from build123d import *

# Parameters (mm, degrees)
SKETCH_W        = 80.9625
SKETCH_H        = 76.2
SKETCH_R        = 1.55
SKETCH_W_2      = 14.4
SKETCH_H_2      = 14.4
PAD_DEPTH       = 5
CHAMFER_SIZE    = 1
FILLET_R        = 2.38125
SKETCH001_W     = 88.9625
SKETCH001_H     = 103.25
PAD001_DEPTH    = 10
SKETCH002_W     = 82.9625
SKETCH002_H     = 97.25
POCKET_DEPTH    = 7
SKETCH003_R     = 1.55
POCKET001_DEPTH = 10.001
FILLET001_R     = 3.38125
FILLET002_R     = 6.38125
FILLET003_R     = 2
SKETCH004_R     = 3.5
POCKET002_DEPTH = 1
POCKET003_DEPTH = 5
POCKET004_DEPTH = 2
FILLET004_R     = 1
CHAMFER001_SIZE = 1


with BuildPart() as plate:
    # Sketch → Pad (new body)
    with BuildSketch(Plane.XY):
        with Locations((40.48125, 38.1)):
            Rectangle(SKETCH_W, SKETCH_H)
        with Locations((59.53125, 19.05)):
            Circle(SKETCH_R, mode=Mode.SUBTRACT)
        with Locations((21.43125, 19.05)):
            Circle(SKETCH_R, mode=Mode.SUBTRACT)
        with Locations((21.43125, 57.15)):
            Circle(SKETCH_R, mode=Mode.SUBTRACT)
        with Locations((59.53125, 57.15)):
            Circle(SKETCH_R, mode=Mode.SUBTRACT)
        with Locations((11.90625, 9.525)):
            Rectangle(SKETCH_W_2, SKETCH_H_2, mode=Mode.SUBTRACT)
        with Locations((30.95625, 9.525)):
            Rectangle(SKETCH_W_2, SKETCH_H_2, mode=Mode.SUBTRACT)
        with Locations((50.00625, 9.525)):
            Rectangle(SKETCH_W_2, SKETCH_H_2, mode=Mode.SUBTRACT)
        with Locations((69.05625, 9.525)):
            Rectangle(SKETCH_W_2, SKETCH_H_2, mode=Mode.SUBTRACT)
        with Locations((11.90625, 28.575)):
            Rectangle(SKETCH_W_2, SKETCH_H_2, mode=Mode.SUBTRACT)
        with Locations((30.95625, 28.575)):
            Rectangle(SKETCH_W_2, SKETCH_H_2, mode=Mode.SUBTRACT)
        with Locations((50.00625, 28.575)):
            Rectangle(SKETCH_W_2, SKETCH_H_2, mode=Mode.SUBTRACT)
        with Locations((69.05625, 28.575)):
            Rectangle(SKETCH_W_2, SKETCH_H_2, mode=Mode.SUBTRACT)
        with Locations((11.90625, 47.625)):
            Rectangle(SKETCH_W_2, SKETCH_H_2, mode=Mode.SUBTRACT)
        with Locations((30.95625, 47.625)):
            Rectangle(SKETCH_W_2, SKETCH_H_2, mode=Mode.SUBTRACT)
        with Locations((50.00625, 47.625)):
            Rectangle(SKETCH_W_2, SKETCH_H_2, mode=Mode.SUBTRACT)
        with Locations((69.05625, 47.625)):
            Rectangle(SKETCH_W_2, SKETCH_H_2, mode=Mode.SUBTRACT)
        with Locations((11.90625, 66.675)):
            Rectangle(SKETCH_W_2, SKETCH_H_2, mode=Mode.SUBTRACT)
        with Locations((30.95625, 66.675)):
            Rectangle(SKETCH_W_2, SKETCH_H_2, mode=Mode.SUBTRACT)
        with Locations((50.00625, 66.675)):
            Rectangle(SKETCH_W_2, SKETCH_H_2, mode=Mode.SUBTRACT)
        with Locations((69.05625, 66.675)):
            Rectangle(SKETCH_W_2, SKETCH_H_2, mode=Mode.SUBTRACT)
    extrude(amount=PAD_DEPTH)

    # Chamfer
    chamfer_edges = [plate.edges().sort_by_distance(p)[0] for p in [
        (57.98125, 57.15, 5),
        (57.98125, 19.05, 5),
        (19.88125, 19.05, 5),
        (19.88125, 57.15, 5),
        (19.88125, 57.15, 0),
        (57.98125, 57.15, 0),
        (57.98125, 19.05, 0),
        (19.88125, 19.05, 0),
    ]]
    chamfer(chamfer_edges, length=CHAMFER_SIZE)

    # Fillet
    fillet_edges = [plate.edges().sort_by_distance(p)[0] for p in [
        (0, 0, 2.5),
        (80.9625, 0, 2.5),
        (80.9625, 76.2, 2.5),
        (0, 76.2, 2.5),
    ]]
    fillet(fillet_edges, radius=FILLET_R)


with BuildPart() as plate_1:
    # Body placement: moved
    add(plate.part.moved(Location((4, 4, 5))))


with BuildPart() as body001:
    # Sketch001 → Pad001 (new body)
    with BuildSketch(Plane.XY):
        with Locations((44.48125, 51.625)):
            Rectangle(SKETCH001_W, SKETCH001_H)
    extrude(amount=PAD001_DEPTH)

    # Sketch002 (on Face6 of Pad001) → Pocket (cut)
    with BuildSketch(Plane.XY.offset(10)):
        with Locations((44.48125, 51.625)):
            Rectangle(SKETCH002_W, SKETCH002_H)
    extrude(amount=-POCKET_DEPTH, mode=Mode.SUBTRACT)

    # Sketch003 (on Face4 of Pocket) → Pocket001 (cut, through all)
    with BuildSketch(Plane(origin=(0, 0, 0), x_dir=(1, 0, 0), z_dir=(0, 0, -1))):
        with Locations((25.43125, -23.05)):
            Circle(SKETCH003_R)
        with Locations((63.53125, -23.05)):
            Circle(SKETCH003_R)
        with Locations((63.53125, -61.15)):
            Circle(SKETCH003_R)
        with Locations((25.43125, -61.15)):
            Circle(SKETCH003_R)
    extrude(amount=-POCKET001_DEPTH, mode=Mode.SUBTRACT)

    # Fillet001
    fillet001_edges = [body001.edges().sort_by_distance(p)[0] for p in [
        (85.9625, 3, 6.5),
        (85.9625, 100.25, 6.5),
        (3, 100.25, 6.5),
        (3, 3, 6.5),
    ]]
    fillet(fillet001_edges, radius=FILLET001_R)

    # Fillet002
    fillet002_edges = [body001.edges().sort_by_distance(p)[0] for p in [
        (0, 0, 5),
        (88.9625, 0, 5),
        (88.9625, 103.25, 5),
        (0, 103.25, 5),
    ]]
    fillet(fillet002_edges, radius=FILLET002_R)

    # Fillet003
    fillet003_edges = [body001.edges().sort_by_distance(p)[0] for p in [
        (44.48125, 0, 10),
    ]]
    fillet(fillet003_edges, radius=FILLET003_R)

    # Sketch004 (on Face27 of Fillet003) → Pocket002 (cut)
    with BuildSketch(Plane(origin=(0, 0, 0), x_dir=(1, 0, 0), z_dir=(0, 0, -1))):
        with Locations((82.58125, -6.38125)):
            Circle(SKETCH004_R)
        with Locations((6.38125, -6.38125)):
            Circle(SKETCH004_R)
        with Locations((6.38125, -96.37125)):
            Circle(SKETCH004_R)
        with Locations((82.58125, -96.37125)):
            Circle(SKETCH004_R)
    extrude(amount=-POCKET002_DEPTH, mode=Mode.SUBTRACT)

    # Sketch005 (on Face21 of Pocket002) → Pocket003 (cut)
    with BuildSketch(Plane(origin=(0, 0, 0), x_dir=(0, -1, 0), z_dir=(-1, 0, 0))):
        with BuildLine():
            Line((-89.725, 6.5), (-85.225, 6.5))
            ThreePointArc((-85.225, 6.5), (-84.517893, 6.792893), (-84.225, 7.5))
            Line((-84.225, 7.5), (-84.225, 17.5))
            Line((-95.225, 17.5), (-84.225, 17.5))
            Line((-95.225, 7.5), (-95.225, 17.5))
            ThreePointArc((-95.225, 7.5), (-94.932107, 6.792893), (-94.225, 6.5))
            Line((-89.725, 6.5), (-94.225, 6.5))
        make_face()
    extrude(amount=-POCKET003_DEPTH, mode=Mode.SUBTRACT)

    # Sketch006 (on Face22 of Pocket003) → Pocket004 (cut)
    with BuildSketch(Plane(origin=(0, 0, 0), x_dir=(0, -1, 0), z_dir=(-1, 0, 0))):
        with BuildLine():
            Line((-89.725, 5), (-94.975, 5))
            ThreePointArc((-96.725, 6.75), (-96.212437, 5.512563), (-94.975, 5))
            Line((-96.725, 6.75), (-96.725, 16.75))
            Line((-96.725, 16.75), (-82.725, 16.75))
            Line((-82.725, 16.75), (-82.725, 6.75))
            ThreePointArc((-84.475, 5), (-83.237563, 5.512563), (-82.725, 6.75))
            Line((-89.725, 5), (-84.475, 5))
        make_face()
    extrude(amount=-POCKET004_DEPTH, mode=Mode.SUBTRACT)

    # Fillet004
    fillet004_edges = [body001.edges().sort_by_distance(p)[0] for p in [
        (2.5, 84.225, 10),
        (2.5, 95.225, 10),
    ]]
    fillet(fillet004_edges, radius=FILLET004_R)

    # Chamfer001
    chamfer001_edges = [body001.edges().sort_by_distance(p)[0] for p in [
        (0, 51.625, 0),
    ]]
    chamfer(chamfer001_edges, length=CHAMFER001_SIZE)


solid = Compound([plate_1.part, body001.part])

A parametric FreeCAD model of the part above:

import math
import FreeCAD as App
import Part
import Sketcher

V = App.Vector


def edges_at(feature, points):
    """Names of the edges that pass closest to the given points."""
    edges = feature.Shape.Edges
    near = lambda p: min(range(len(edges)), key=lambda i: edges[i].distToShape(Part.Vertex(*p))[0])
    return sorted({f"Edge{near(p) + 1}" for p in points})


def add_polygon(sketch, points):
    """Adds a closed chain of lines whose ends are joined by coincident constraints."""
    first, n = sketch.GeometryCount, len(points)
    for a, b in zip(points, points[1:] + points[:1]):
        sketch.addGeometry(Part.LineSegment(App.Vector(*a, 0), App.Vector(*b, 0)), False)
    for i in range(n):
        sketch.addConstraint(Sketcher.Constraint("Coincident", first + i, 2, first + (i + 1) % n, 1))

doc = App.newDocument("Part")
body = doc.addObject("PartDesign::Body", "Body")

# Sketch on XY plane
sketch1 = body.newObject("Sketcher::SketchObject", "Sketch")
sketch1.AttachmentSupport = (doc.getObject("XY_Plane"), [""])
sketch1.MapMode = "FlatFace"
add_polygon(sketch1, [(0, 76.2), (0, 0), (81, 0), (81, 76.2)])  # lines 0-3
add_polygon(sketch1, [(19.1, 2.3), (4.7, 2.3), (4.7, 16.7), (19.1, 16.7)])  # lines 4-7
sketch1.addGeometry(Part.Circle(V(21.4, 19.1, 0), V(0, 0, 1), 1.6), False)  # 8
add_polygon(sketch1, [(38.2, 2.3), (23.8, 2.3), (23.8, 16.7), (38.2, 16.7)])  # lines 9-12
add_polygon(sketch1, [(19.1, 21.4), (4.7, 21.4), (4.7, 35.8), (19.1, 35.8)])  # lines 13-16
add_polygon(sketch1, [(38.2, 21.4), (23.8, 21.4), (23.8, 35.8), (38.2, 35.8)])  # lines 17-20
add_polygon(sketch1, [(57.2, 2.3), (42.8, 2.3), (42.8, 16.7), (57.2, 16.7)])  # lines 21-24
add_polygon(sketch1, [(76.3, 2.3), (61.9, 2.3), (61.9, 16.7), (76.3, 16.7)])  # lines 25-28
sketch1.addGeometry(Part.Circle(V(59.5, 19.1, 0), V(0, 0, 1), 1.6), False)  # 29
add_polygon(sketch1, [(57.2, 21.4), (42.8, 21.4), (42.8, 35.8), (57.2, 35.8)])  # lines 30-33
add_polygon(sketch1, [(76.3, 21.4), (61.9, 21.4), (61.9, 35.8), (76.3, 35.8)])  # lines 34-37
add_polygon(sketch1, [(19.1, 40.4), (4.7, 40.4), (4.7, 54.8), (19.1, 54.8)])  # lines 38-41
add_polygon(sketch1, [(38.2, 40.4), (23.8, 40.4), (23.8, 54.8), (38.2, 54.8)])  # lines 42-45
sketch1.addGeometry(Part.Circle(V(21.4, 57.1, 0), V(0, 0, 1), 1.6), False)  # 46
add_polygon(sketch1, [(19.1, 59.5), (4.7, 59.5), (4.7, 73.9), (19.1, 73.9)])  # lines 47-50
add_polygon(sketch1, [(38.2, 59.5), (23.8, 59.5), (23.8, 73.9), (38.2, 73.9)])  # lines 51-54
add_polygon(sketch1, [(57.2, 40.4), (42.8, 40.4), (42.8, 54.8), (57.2, 54.8)])  # lines 55-58
add_polygon(sketch1, [(76.3, 40.4), (61.9, 40.4), (61.9, 54.8), (76.3, 54.8)])  # lines 59-62
add_polygon(sketch1, [(57.2, 59.5), (42.8, 59.5), (42.8, 73.9), (57.2, 73.9)])  # lines 63-66
sketch1.addGeometry(Part.Circle(V(59.5, 57.1, 0), V(0, 0, 1), 1.6), False)  # 67
add_polygon(sketch1, [(76.3, 59.5), (61.9, 59.5), (61.9, 73.9), (76.3, 73.9)])  # lines 68-71
sketch1.addConstraint([
    Sketcher.Constraint("Vertical", 0),
    Sketcher.Constraint("Horizontal", 1),
    Sketcher.Constraint("Vertical", 2),
    Sketcher.Constraint("Horizontal", 3),
    Sketcher.Constraint("Horizontal", 4),
    Sketcher.Constraint("Vertical", 5),
    Sketcher.Constraint("Horizontal", 6),
    Sketcher.Constraint("Vertical", 7),
    Sketcher.Constraint("Horizontal", 9),
    Sketcher.Constraint("Vertical", 10),
    Sketcher.Constraint("Horizontal", 11),
    Sketcher.Constraint("Vertical", 12),
    Sketcher.Constraint("Horizontal", 13),
    Sketcher.Constraint("Vertical", 14),
    Sketcher.Constraint("Horizontal", 15),
    Sketcher.Constraint("Vertical", 16),
    Sketcher.Constraint("Horizontal", 17),
    Sketcher.Constraint("Vertical", 18),
    Sketcher.Constraint("Horizontal", 19),
    Sketcher.Constraint("Vertical", 20),
    Sketcher.Constraint("Horizontal", 21),
    Sketcher.Constraint("Vertical", 22),
    Sketcher.Constraint("Horizontal", 23),
    Sketcher.Constraint("Vertical", 24),
    Sketcher.Constraint("Horizontal", 25),
    Sketcher.Constraint("Vertical", 26),
    Sketcher.Constraint("Horizontal", 27),
    Sketcher.Constraint("Vertical", 28),
    Sketcher.Constraint("Horizontal", 30),
    Sketcher.Constraint("Vertical", 31),
    Sketcher.Constraint("Horizontal", 32),
    Sketcher.Constraint("Vertical", 33),
    Sketcher.Constraint("Horizontal", 34),
    Sketcher.Constraint("Vertical", 35),
    Sketcher.Constraint("Horizontal", 36),
    Sketcher.Constraint("Vertical", 37),
    Sketcher.Constraint("Horizontal", 38),
    Sketcher.Constraint("Vertical", 39),
    Sketcher.Constraint("Horizontal", 40),
    Sketcher.Constraint("Vertical", 41),
    Sketcher.Constraint("Horizontal", 42),
    Sketcher.Constraint("Vertical", 43),
    Sketcher.Constraint("Horizontal", 44),
    Sketcher.Constraint("Vertical", 45),
    Sketcher.Constraint("Horizontal", 47),
    Sketcher.Constraint("Vertical", 48),
    Sketcher.Constraint("Horizontal", 49),
    Sketcher.Constraint("Vertical", 50),
    Sketcher.Constraint("Horizontal", 51),
    Sketcher.Constraint("Vertical", 52),
    Sketcher.Constraint("Horizontal", 53),
    Sketcher.Constraint("Vertical", 54),
    Sketcher.Constraint("Horizontal", 55),
    Sketcher.Constraint("Vertical", 56),
    Sketcher.Constraint("Horizontal", 57),
    Sketcher.Constraint("Vertical", 58),
    Sketcher.Constraint("Horizontal", 59),
    Sketcher.Constraint("Vertical", 60),
    Sketcher.Constraint("Horizontal", 61),
    Sketcher.Constraint("Vertical", 62),
    Sketcher.Constraint("Horizontal", 63),
    Sketcher.Constraint("Vertical", 64),
    Sketcher.Constraint("Horizontal", 65),
    Sketcher.Constraint("Vertical", 66),
    Sketcher.Constraint("Horizontal", 68),
    Sketcher.Constraint("Vertical", 69),
    Sketcher.Constraint("Horizontal", 70),
    Sketcher.Constraint("Vertical", 71),
    Sketcher.Constraint("Coincident", 0, 2, -1, 1),
    Sketcher.Constraint("Equal", 8, 29),
    Sketcher.Constraint("Equal", 29, 46),
    Sketcher.Constraint("Equal", 46, 67),
    Sketcher.Constraint("Horizontal", 8, 3, 29, 3),
    Sketcher.Constraint("Horizontal", 46, 3, 67, 3),
    Sketcher.Constraint("Horizontal", 7, 2, 9, 2),
    Sketcher.Constraint("Horizontal", 6, 2, 10, 2),
    Sketcher.Constraint("Horizontal", 16, 2, 17, 2),
    Sketcher.Constraint("Horizontal", 15, 2, 18, 2),
    Sketcher.Constraint("Horizontal", 12, 2, 21, 2),
    Sketcher.Constraint("Horizontal", 11, 2, 22, 2),
    Sketcher.Constraint("Horizontal", 24, 2, 25, 2),
    Sketcher.Constraint("Horizontal", 23, 2, 26, 2),
    Sketcher.Constraint("Horizontal", 20, 2, 30, 2),
    Sketcher.Constraint("Horizontal", 19, 2, 31, 2),
    Sketcher.Constraint("Horizontal", 33, 2, 34, 2),
    Sketcher.Constraint("Horizontal", 32, 2, 35, 2),
    Sketcher.Constraint("Horizontal", 41, 2, 42, 2),
    Sketcher.Constraint("Horizontal", 40, 2, 43, 2),
    Sketcher.Constraint("Horizontal", 50, 2, 51, 2),
    Sketcher.Constraint("Horizontal", 49, 2, 52, 2),
    Sketcher.Constraint("Horizontal", 45, 2, 55, 2),
    Sketcher.Constraint("Horizontal", 44, 2, 56, 2),
    Sketcher.Constraint("Horizontal", 58, 2, 59, 2),
    Sketcher.Constraint("Horizontal", 57, 2, 60, 2),
    Sketcher.Constraint("Horizontal", 54, 2, 63, 2),
    Sketcher.Constraint("Horizontal", 53, 2, 64, 2),
    Sketcher.Constraint("Horizontal", 66, 2, 68, 2),
    Sketcher.Constraint("Horizontal", 65, 2, 69, 2),
    Sketcher.Constraint("Vertical", 8, 3, 46, 3),
    Sketcher.Constraint("Vertical", 29, 3, 67, 3),
    Sketcher.Constraint("Vertical", 5, 2, 13, 2),
    Sketcher.Constraint("Vertical", 7, 2, 15, 2),
    Sketcher.Constraint("Vertical", 10, 2, 17, 2),
    Sketcher.Constraint("Vertical", 12, 2, 19, 2),
    Sketcher.Constraint("Vertical", 22, 2, 30, 2),
    Sketcher.Constraint("Vertical", 24, 2, 32, 2),
    Sketcher.Constraint("Vertical", 26, 2, 34, 2),
    Sketcher.Constraint("Vertical", 28, 2, 36, 2),
    Sketcher.Constraint("Vertical", 14, 2, 38, 2),
    Sketcher.Constraint("Vertical", 16, 2, 40, 2),
    Sketcher.Constraint("Vertical", 18, 2, 42, 2),
    Sketcher.Constraint("Vertical", 20, 2, 44, 2),
    Sketcher.Constraint("Vertical", 39, 2, 47, 2),
    Sketcher.Constraint("Vertical", 41, 2, 49, 2),
    Sketcher.Constraint("Vertical", 43, 2, 51, 2),
    Sketcher.Constraint("Vertical", 45, 2, 53, 2),
    Sketcher.Constraint("Vertical", 31, 2, 55, 2),
    Sketcher.Constraint("Vertical", 33, 2, 57, 2),
    Sketcher.Constraint("Vertical", 35, 2, 59, 2),
    Sketcher.Constraint("Vertical", 37, 2, 61, 2),
    Sketcher.Constraint("Vertical", 56, 2, 63, 2),
    Sketcher.Constraint("Vertical", 58, 2, 65, 2),
    Sketcher.Constraint("Vertical", 60, 2, 68, 2),
    Sketcher.Constraint("Vertical", 62, 2, 70, 2),
    Sketcher.Constraint("Equal", 6, 9),
    Sketcher.Constraint("Equal", 19, 21),
    Sketcher.Constraint("Equal", 23, 25),
    Sketcher.Constraint("Equal", 70, 5),
    Sketcher.Constraint("Equal", 12, 14),
    Sketcher.Constraint("Equal", 37, 39),
    Sketcher.Constraint("Equal", 45, 48),
    Sketcher.Constraint("Diameter", 8, 3.1),
    Sketcher.Constraint("DistanceX", 4, 2, 4, 1, 14.4),
    Sketcher.Constraint("DistanceY", 0, 2, 0, 1, 76.2),
    Sketcher.Constraint("DistanceY", -1, 1, 8, 3, 19.05),
    Sketcher.Constraint("DistanceY", -1, 1, 46, 3, 57.15),
    Sketcher.Constraint("DistanceX", 1, 1, 1, 2, 80.9625),
    Sketcher.Constraint("DistanceY", -1, 1, 4, 2, 2.325),
    Sketcher.Constraint("DistanceY", -1, 1, 13, 2, 21.375),
    Sketcher.Constraint("DistanceY", -1, 1, 38, 2, 40.425),
    Sketcher.Constraint("DistanceY", -1, 1, 47, 2, 59.475),
    Sketcher.Constraint("DistanceX", -1, 1, 8, 3, 21.43125),
    Sketcher.Constraint("DistanceX", -1, 1, 29, 3, 59.53125),
    Sketcher.Constraint("DistanceX", -1, 1, 4, 2, 4.70625),
    Sketcher.Constraint("DistanceX", -1, 1, 9, 2, 23.75625),
    Sketcher.Constraint("DistanceX", -1, 1, 21, 2, 42.80625),
    Sketcher.Constraint("DistanceX", -1, 1, 25, 2, 61.85625),
])
pad1 = body.newObject("PartDesign::Pad", "Pad")
pad1.Profile = sketch1
pad1.Length = 5
doc.recompute()

chamfer = body.newObject("PartDesign::Chamfer", "Chamfer")
chamfer.Base = (pad1, edges_at(pad1, [
    (57.981, 57.15, 5),
    (57.981, 19.05, 5),
    (19.881, 19.05, 5),
    (19.881, 57.15, 5),
    (19.881, 57.15, 0),
    (57.981, 57.15, 0),
    (57.981, 19.05, 0),
    (19.881, 19.05, 0),
]))
chamfer.Size = 1
doc.recompute()

fillet = body.newObject("PartDesign::Fillet", "Fillet")
fillet.Base = (chamfer, edges_at(chamfer, [
    (0, 0, 2.5),
    (80.963, 0, 2.5),
    (80.963, 76.2, 2.5),
    (0, 76.2, 2.5),
]))
fillet.Radius = 2.38125
body2 = doc.addObject("PartDesign::Body", "Body001")
doc.recompute()

body.Placement = App.Placement(V(4, 4, 5), App.Rotation(V(0, 0, 1), 0))
boolean = body2.newObject("PartDesign::Boolean", "Boolean")
boolean.Type = "Fuse"
boolean.addObjects([body])
body3 = doc.addObject("PartDesign::Body", "Body002")

# Sketch on XY plane
sketch2 = body3.newObject("Sketcher::SketchObject", "Sketch001")
sketch2.AttachmentSupport = (doc.getObject("XY_Plane002"), [""])
sketch2.MapMode = "FlatFace"
add_polygon(sketch2, [(0, 103), (0, 0), (89, 0), (89, 103)])  # lines 0-3
sketch2.addConstraint([
    Sketcher.Constraint("Vertical", 0),
    Sketcher.Constraint("Horizontal", 1),
    Sketcher.Constraint("Vertical", 2),
    Sketcher.Constraint("Horizontal", 3),
    Sketcher.Constraint("Coincident", 0, 2, -1, 1),
    Sketcher.Constraint("DistanceY", 0, 2, 0, 1, 103.25),
    Sketcher.Constraint("DistanceX", 1, 1, 1, 2, 88.9625),
])
pad2 = body3.newObject("PartDesign::Pad", "Pad001")
pad2.Profile = sketch2
pad2.Length = 10

# Sketch on XY plane
sketch3 = body3.newObject("Sketcher::SketchObject", "Sketch002")
sketch3.AttachmentSupport = (doc.getObject("XY_Plane002"), [""])
sketch3.MapMode = "FlatFace"
sketch3.AttachmentOffset = App.Placement(V(0, 0, 10), App.Rotation())
add_polygon(sketch3, [(3, 100), (3, 3), (86, 3), (86, 100)])  # lines 0-3
sketch3.addConstraint([
    Sketcher.Constraint("Vertical", 0),
    Sketcher.Constraint("Horizontal", 1),
    Sketcher.Constraint("Vertical", 2),
    Sketcher.Constraint("Horizontal", 3),
    Sketcher.Constraint("DistanceX", -1, 1, 0, 2, 3.0),
    Sketcher.Constraint("DistanceY", -1, 1, 0, 2, 3.0),
    Sketcher.Constraint("DistanceY", 0, 2, 0, 1, 97.25),
    Sketcher.Constraint("DistanceX", 1, 1, 1, 2, 82.9625),
])
pocket1 = body3.newObject("PartDesign::Pocket", "Pocket")
pocket1.Profile = sketch3
pocket1.Length = 7

# Sketch on XY plane
sketch4 = body3.newObject("Sketcher::SketchObject", "Sketch003")
sketch4.AttachmentSupport = (doc.getObject("XY_Plane002"), [""])
sketch4.MapMode = "FlatFace"
sketch4.addGeometry([
    Part.Circle(V(25.4, 23.1, 0), V(0, 0, 1), 1.6),
    Part.Circle(V(63.5, 23.1, 0), V(0, 0, 1), 1.6),
    Part.Circle(V(63.5, 61.1, 0), V(0, 0, 1), 1.6),
    Part.Circle(V(25.4, 61.1, 0), V(0, 0, 1), 1.6),
], False)
sketch4.addConstraint([
    Sketcher.Constraint("Equal", 0, 1),
    Sketcher.Constraint("Equal", 1, 2),
    Sketcher.Constraint("Equal", 2, 3),
    Sketcher.Constraint("Horizontal", 0, 3, 1, 3),
    Sketcher.Constraint("Horizontal", 2, 3, 3, 3),
    Sketcher.Constraint("Vertical", 1, 3, 2, 3),
    Sketcher.Constraint("Vertical", 0, 3, 3, 3),
    Sketcher.Constraint("Diameter", 0, 3.1),
    Sketcher.Constraint("DistanceX", 0, 3, 1, 3, 38.1),
    Sketcher.Constraint("DistanceY", 1, 3, 2, 3, 38.1),
    Sketcher.Constraint("DistanceY", -1, 1, 0, 3, 23.05),
    Sketcher.Constraint("DistanceX", -1, 1, 0, 3, 25.43125),
])
pocket2 = body3.newObject("PartDesign::Pocket", "Pocket001")
pocket2.Profile = sketch4
pocket2.Type = "ThroughAll"
pocket2.Reversed = True
doc.recompute()

fillet2 = body3.newObject("PartDesign::Fillet", "Fillet001")
fillet2.Base = (pocket2, edges_at(pocket2, [
    (85.963, 3, 6.5),
    (85.963, 100.25, 6.5),
    (3, 100.25, 6.5),
    (3, 3, 6.5),
]))
fillet2.Radius = 3.38125
doc.recompute()

fillet3 = body3.newObject("PartDesign::Fillet", "Fillet002")
fillet3.Base = (fillet2, edges_at(fillet2, [
    (0, 0, 5),
    (88.963, 0, 5),
    (88.963, 103.25, 5),
    (0, 103.25, 5),
]))
fillet3.Radius = 6.38125
doc.recompute()

fillet4 = body3.newObject("PartDesign::Fillet", "Fillet003")
fillet4.Base = (fillet3, edges_at(fillet3, [(44.481, 0, 10)]))
fillet4.Radius = 2

# Sketch on XY plane
sketch5 = body3.newObject("Sketcher::SketchObject", "Sketch004")
sketch5.AttachmentSupport = (doc.getObject("XY_Plane002"), [""])
sketch5.MapMode = "FlatFace"
sketch5.addGeometry([
    Part.Circle(V(82.6, 6.4, 0), V(0, 0, 1), 3.5),
    Part.Circle(V(6.4, 6.4, 0), V(0, 0, 1), 3.5),
    Part.Circle(V(6.4, 96.4, 0), V(0, 0, 1), 3.5),
    Part.Circle(V(82.6, 96.4, 0), V(0, 0, 1), 3.5),
], False)
sketch5.addConstraint([
    Sketcher.Constraint("Equal", 0, 1),
    Sketcher.Constraint("Equal", 1, 2),
    Sketcher.Constraint("Equal", 2, 3),
    Sketcher.Constraint("Horizontal", 0, 3, 1, 3),
    Sketcher.Constraint("Horizontal", 2, 3, 3, 3),
    Sketcher.Constraint("Vertical", 1, 3, 2, 3),
    Sketcher.Constraint("Vertical", 0, 3, 3, 3),
    Sketcher.Constraint("Diameter", 0, 7.0),
    Sketcher.Constraint("DistanceX", 1, 3, 0, 3, 76.2),
    Sketcher.Constraint("DistanceY", 1, 3, 2, 3, 89.99),
    Sketcher.Constraint("DistanceX", -1, 1, 0, 3, 82.58125),
    Sketcher.Constraint("DistanceY", -1, 1, 0, 3, 6.38125),
])
pocket3 = body3.newObject("PartDesign::Pocket", "Pocket002")
pocket3.Profile = sketch5
pocket3.Length = 1
pocket3.Reversed = True

# Sketch on YZ plane
sketch6 = body3.newObject("Sketcher::SketchObject", "Sketch005")
sketch6.AttachmentSupport = (doc.getObject("YZ_Plane002"), [""])
sketch6.MapMode = "FlatFace"
sketch6.addGeometry([
    Part.ArcOfCircle(Part.Circle(V(85.2, 7.5, 0), V(0, 0, 1), 1), math.radians(180), math.radians(270)),  # 0
    Part.LineSegment(V(84.2, 7.5, 0), V(84.2, 17.5, 0)),  # 1
    Part.LineSegment(V(84.2, 17.5, 0), V(95.2, 17.5, 0)),  # 2
    Part.LineSegment(V(95.2, 17.5, 0), V(95.2, 7.5, 0)),  # 3
    Part.ArcOfCircle(Part.Circle(V(94.2, 7.5, 0), V(0, 0, 1), 1), math.radians(-90), math.radians(0)),  # 4
    Part.LineSegment(V(94.2, 6.5, 0), V(85.2, 6.5, 0)),  # 5
], False)
sketch6.addConstraint([
    Sketcher.Constraint("Tangent", 0, 1, 1, 1),
    Sketcher.Constraint("Coincident", 1, 2, 2, 1),
    Sketcher.Constraint("Coincident", 2, 2, 3, 1),
    Sketcher.Constraint("Tangent", 3, 2, 4, 2),
    Sketcher.Constraint("Tangent", 4, 1, 5, 1),
    Sketcher.Constraint("Tangent", 5, 2, 0, 2),
    Sketcher.Constraint("Vertical", 1),
    Sketcher.Constraint("Horizontal", 2),
    Sketcher.Constraint("Vertical", 3),
    Sketcher.Constraint("Horizontal", 5),
    Sketcher.Constraint("Equal", 0, 4),
    Sketcher.Constraint("Radius", 0, 0.999999),
    Sketcher.Constraint("DistanceX", 2, 1, 2, 2, 11.0),
    Sketcher.Constraint("DistanceY", 1, 1, 1, 2, 10.0),
    Sketcher.Constraint("DistanceY", -1, 1, 0, 3, 7.499999),
    Sketcher.Constraint("DistanceX", -1, 1, 0, 3, 85.224999),
])
pocket4 = body3.newObject("PartDesign::Pocket", "Pocket003")
pocket4.Profile = sketch6
pocket4.Length = 5
pocket4.Reversed = True

# Sketch on YZ plane
sketch7 = body3.newObject("Sketcher::SketchObject", "Sketch006")
sketch7.AttachmentSupport = (doc.getObject("YZ_Plane002"), [""])
sketch7.MapMode = "FlatFace"
sketch7.addGeometry([
    Part.LineSegment(V(95, 5, 0), V(84.5, 5, 0)),  # 0
    Part.ArcOfCircle(Part.Circle(V(84.5, 6.7, 0), V(0, 0, 1), 1.7), math.radians(180), math.radians(270)),  # 1
    Part.LineSegment(V(82.7, 6.8, 0), V(82.7, 16.8, 0)),  # 2
    Part.LineSegment(V(82.7, 16.8, 0), V(96.7, 16.8, 0)),  # 3
    Part.LineSegment(V(96.7, 16.8, 0), V(96.7, 6.8, 0)),  # 4
    Part.ArcOfCircle(Part.Circle(V(95, 6.7, 0), V(0, 0, 1), 1.7), math.radians(-90), math.radians(0)),  # 5
], False)
sketch7.addConstraint([
    Sketcher.Constraint("Tangent", 0, 2, 1, 2),
    Sketcher.Constraint("Tangent", 1, 1, 2, 1),
    Sketcher.Constraint("Coincident", 2, 2, 3, 1),
    Sketcher.Constraint("Coincident", 3, 2, 4, 1),
    Sketcher.Constraint("Tangent", 4, 2, 5, 2),
    Sketcher.Constraint("Tangent", 5, 1, 0, 1),
    Sketcher.Constraint("Horizontal", 0),
    Sketcher.Constraint("Vertical", 2),
    Sketcher.Constraint("Horizontal", 3),
    Sketcher.Constraint("Vertical", 4),
    Sketcher.Constraint("Equal", 1, 5),
    Sketcher.Constraint("DistanceX", 3, 1, 3, 2, 14.0),
    Sketcher.Constraint("DistanceY", 2, 1, 2, 2, 10.0),
    Sketcher.Constraint("Radius", 1, 1.75),
    Sketcher.Constraint("DistanceY", -1, 1, 0, 2, 5.0),
    Sketcher.Constraint("DistanceX", -1, 1, 1, 3, 84.475),
])
pocket5 = body3.newObject("PartDesign::Pocket", "Pocket004")
pocket5.Profile = sketch7
pocket5.Length = 2
pocket5.Reversed = True
doc.recompute()

fillet5 = body3.newObject("PartDesign::Fillet", "Fillet004")
fillet5.Base = (pocket5, edges_at(pocket5, [(2.5, 84.225, 10), (2.5, 95.225, 10)]))
fillet5.Radius = 1
doc.recompute()

chamfer2 = body3.newObject("PartDesign::Chamfer", "Chamfer001")
chamfer2.Base = (fillet5, edges_at(fillet5, [(0, 51.625, 0)]))
chamfer2.Size = 1

doc.recompute()
